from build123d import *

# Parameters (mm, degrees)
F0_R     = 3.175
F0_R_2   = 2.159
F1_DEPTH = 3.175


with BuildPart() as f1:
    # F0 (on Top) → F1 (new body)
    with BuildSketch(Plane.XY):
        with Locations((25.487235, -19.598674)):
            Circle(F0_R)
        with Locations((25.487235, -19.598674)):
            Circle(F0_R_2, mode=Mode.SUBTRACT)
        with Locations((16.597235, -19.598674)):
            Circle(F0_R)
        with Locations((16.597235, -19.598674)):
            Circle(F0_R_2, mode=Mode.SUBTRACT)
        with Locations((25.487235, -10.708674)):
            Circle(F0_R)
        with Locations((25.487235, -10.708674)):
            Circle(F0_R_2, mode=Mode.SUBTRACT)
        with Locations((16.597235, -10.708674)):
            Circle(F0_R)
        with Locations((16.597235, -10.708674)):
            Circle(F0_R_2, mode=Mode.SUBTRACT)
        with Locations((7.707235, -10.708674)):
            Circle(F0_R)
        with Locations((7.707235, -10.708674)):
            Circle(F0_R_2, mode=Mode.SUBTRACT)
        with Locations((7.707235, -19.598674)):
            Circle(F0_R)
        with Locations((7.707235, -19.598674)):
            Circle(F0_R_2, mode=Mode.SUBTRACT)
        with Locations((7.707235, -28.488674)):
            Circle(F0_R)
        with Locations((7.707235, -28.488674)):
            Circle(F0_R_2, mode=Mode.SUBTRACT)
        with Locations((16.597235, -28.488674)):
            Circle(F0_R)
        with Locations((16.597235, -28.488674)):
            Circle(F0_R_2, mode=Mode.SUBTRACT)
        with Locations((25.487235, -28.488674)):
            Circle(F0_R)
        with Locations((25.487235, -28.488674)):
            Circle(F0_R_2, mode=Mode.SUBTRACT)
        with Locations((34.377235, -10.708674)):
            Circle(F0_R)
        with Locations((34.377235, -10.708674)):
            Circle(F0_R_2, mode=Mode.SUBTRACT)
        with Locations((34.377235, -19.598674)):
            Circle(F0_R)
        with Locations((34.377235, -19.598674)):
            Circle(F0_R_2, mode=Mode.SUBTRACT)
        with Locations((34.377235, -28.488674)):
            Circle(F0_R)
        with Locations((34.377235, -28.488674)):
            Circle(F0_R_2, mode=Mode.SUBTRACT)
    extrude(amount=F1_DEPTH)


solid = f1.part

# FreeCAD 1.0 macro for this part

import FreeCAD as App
import Part
import Sketcher
from FreeCAD import Vector
Q = App.Units.Quantity

doc = App.newDocument("Part")
body = doc.addObject("PartDesign::Body", "Body")
body.AllowCompound = True

# Sketch on XY plane
sketch1 = doc.addObject("Sketcher::SketchObject", "Sketch")
body.addObject(sketch1)
sketch1.AttachmentSupport = (doc.XY_Plane, [""])
sketch1.MapMode = "FlatFace"
sketch1.addGeometry([
    Part.Circle(Vector(25.5, -19.6, 0), Vector(0, 0, 1), 3.2),  # 0
    Part.Circle(Vector(25.5, -19.6, 0), Vector(0, 0, 1), 2.2),  # 1
    Part.Circle(Vector(16.6, -19.6, 0), Vector(0, 0, 1), 3.2),  # 2
    Part.Circle(Vector(16.6, -19.6, 0), Vector(0, 0, 1), 2.2),  # 3
    Part.Circle(Vector(25.5, -10.7, 0), Vector(0, 0, 1), 3.2),  # 4
    Part.Circle(Vector(25.5, -10.7, 0), Vector(0, 0, 1), 2.2),  # 5
    Part.Circle(Vector(16.6, -10.7, 0), Vector(0, 0, 1), 3.2),  # 6
    Part.Circle(Vector(16.6, -10.7, 0), Vector(0, 0, 1), 2.2),  # 7
    Part.Circle(Vector(7.7, -10.7, 0), Vector(0, 0, 1), 3.2),  # 8
    Part.Circle(Vector(7.7, -10.7, 0), Vector(0, 0, 1), 2.2),  # 9
    Part.Circle(Vector(7.7, -19.6, 0), Vector(0, 0, 1), 3.2),  # 10
    Part.Circle(Vector(7.7, -19.6, 0), Vector(0, 0, 1), 2.2),  # 11
    Part.Circle(Vector(7.7, -28.5, 0), Vector(0, 0, 1), 3.2),  # 12
    Part.Circle(Vector(7.7, -28.5, 0), Vector(0, 0, 1), 2.2),  # 13
    Part.Circle(Vector(16.6, -28.5, 0), Vector(0, 0, 1), 3.2),  # 14
    Part.Circle(Vector(16.6, -28.5, 0), Vector(0, 0, 1), 2.2),  # 15
    Part.Circle(Vector(25.5, -28.5, 0), Vector(0, 0, 1), 3.2),  # 16
    Part.Circle(Vector(25.5, -28.5, 0), Vector(0, 0, 1), 2.2),  # 17
    Part.Circle(Vector(34.4, -10.7, 0), Vector(0, 0, 1), 3.2),  # 18
    Part.Circle(Vector(34.4, -10.7, 0), Vector(0, 0, 1), 2.2),  # 19
    Part.Circle(Vector(34.4, -19.6, 0), Vector(0, 0, 1), 3.2),  # 20
    Part.Circle(Vector(34.4, -19.6, 0), Vector(0, 0, 1), 2.2),  # 21
    Part.Circle(Vector(34.4, -28.5, 0), Vector(0, 0, 1), 3.2),  # 22
    Part.Circle(Vector(34.4, -28.5, 0), Vector(0, 0, 1), 2.2),  # 23
], False)
sketch1.addConstraint([
    Sketcher.Constraint("Coincident", 1, 3, 0, 3),
    Sketcher.Constraint("Coincident", 3, 3, 2, 3),
    Sketcher.Constraint("Coincident", 5, 3, 4, 3),
    Sketcher.Constraint("Coincident", 7, 3, 6, 3),
    Sketcher.Constraint("Coincident", 9, 3, 8, 3),
    Sketcher.Constraint("Coincident", 11, 3, 10, 3),
    Sketcher.Constraint("Coincident", 13, 3, 12, 3),
    Sketcher.Constraint("Coincident", 15, 3, 14, 3),
    Sketcher.Constraint("Coincident", 17, 3, 16, 3),
    Sketcher.Constraint("Coincident", 19, 3, 18, 3),
    Sketcher.Constraint("Coincident", 21, 3, 20, 3),
    Sketcher.Constraint("Coincident", 23, 3, 22, 3),
    Sketcher.Constraint("Equal", 0, 2),
    Sketcher.Constraint("Equal", 1, 3),
    Sketcher.Constraint("Equal", 2, 4),
    Sketcher.Constraint("Equal", 3, 5),
    Sketcher.Constraint("Equal", 4, 6),
    Sketcher.Constraint("Equal", 5, 7),
    Sketcher.Constraint("Equal", 6, 8),
    Sketcher.Constraint("Equal", 7, 9),
    Sketcher.Constraint("Equal", 8, 10),
    Sketcher.Constraint("Equal", 9, 11),
    Sketcher.Constraint("Equal", 10, 12),
    Sketcher.Constraint("Equal", 11, 13),
    Sketcher.Constraint("Equal", 12, 14),
    Sketcher.Constraint("Equal", 13, 15),
    Sketcher.Constraint("Equal", 14, 16),
    Sketcher.Constraint("Equal", 15, 17),
    Sketcher.Constraint("Equal", 16, 18),
    Sketcher.Constraint("Equal", 17, 19),
    Sketcher.Constraint("Equal", 18, 20),
    Sketcher.Constraint("Equal", 19, 21),
    Sketcher.Constraint("Equal", 20, 22),
    Sketcher.Constraint("Equal", 21, 23),
    Sketcher.Constraint("Horizontal", 1, 3, 2, 3),
    Sketcher.Constraint("Horizontal", 5, 3, 6, 3),
    Sketcher.Constraint("Horizontal", 7, 3, 8, 3),
    Sketcher.Constraint("Horizontal", 3, 3, 10, 3),
    Sketcher.Constraint("Horizontal", 13, 3, 14, 3),
    Sketcher.Constraint("Horizontal", 15, 3, 16, 3),
    Sketcher.Constraint("Horizontal", 9, 3, 18, 3),
    Sketcher.Constraint("Horizontal", 11, 3, 20, 3),
    Sketcher.Constraint("Horizontal", 17, 3, 22, 3),
    Sketcher.Constraint("Vertical", 1, 3, 4, 3),
    Sketcher.Constraint("Vertical", 3, 3, 6, 3),
    Sketcher.Constraint("Vertical", 9, 3, 10, 3),
    Sketcher.Constraint("Vertical", 11, 3, 12, 3),
    Sketcher.Constraint("Vertical", 7, 3, 14, 3),
    Sketcher.Constraint("Vertical", 5, 3, 16, 3),
    Sketcher.Constraint("Vertical", 19, 3, 20, 3),
    Sketcher.Constraint("Vertical", 21, 3, 22, 3),
    Sketcher.Constraint("Diameter", 0, Q("0.25 in")),
    Sketcher.Constraint("Diameter", 1, Q("0.17 in")),
    Sketcher.Constraint("DistanceX", 8, 3, 4, 3, Q("0.7 in")),
    Sketcher.Constraint("DistanceY", 12, 3, 8, 3, Q("0.7 in")),
    Sketcher.Constraint("DistanceX", 6, 3, 18, 3, Q("0.7 in")),
    Sketcher.Constraint("DistanceX", 2, 3, 0, 3, Q("0.35 in")),
    Sketcher.Constraint("DistanceY", 0, 3, 4, 3, Q("0.35 in")),
    Sketcher.Constraint("DistanceX", -1, 1, 0, 3, Q("25.487235 mm")),
    Sketcher.Constraint("DistanceY", 0, 3, -1, 1, Q("19.598674 mm")),
])
pad1 = doc.addObject("PartDesign::Pad", "Pad")
body.addObject(pad1)
pad1.Profile = sketch1
pad1.Length = Q("0.125 in")

doc.recompute()
